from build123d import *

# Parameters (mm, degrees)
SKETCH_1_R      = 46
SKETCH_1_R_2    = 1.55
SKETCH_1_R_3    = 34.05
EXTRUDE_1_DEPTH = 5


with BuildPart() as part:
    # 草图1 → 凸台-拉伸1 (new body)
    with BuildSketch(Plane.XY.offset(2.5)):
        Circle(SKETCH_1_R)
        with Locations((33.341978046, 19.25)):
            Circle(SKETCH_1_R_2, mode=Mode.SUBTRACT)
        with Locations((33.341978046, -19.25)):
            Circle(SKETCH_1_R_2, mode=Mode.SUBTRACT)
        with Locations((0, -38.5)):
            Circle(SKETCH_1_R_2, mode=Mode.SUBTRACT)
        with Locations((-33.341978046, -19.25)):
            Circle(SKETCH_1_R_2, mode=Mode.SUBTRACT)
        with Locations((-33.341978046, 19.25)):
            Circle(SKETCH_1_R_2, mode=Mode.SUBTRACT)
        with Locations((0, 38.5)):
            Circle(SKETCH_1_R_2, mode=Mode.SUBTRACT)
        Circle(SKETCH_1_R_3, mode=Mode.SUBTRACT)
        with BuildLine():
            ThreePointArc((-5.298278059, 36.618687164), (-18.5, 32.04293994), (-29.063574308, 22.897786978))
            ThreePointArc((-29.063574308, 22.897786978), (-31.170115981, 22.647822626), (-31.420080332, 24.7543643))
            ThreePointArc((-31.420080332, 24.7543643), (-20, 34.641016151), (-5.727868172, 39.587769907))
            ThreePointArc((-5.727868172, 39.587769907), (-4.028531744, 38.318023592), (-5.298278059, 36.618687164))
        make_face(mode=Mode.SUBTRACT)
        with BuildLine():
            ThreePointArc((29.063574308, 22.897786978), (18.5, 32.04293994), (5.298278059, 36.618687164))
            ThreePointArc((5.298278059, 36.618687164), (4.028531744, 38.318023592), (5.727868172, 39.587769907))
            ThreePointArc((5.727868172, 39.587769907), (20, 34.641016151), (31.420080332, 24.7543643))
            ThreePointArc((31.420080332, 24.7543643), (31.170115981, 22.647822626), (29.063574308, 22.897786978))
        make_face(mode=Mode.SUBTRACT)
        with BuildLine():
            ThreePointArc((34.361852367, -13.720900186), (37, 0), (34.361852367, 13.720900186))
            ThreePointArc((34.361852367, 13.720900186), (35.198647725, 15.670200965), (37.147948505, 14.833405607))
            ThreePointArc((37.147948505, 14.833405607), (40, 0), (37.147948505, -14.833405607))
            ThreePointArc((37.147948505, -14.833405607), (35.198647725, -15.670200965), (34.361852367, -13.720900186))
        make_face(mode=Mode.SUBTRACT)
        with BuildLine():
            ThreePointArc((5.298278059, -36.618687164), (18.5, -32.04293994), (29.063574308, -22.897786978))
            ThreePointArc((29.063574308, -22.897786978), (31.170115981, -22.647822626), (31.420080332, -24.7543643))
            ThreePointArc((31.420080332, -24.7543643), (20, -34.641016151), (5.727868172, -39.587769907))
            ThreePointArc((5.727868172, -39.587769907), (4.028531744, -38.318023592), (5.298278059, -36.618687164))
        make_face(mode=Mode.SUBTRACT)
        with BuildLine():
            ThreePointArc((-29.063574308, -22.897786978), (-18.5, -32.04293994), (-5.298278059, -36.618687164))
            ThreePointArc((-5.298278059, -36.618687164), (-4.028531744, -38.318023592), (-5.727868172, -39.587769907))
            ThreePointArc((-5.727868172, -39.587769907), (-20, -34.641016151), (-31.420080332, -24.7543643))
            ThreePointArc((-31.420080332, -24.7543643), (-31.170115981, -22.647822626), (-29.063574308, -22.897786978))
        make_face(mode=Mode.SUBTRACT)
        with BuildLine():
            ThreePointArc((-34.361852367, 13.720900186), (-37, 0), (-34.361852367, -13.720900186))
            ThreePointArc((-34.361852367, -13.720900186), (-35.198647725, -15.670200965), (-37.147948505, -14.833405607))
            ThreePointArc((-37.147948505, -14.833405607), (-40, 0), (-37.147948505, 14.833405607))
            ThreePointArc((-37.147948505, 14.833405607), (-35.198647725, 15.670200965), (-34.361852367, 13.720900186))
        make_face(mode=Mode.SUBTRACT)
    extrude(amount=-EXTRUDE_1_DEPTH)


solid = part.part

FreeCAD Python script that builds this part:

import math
import FreeCAD as App
import Part
import Sketcher

V = App.Vector
Q = App.Units.Quantity

doc = App.newDocument("Part")
params = doc.addObject("Spreadsheet::Sheet", "Params")
for row, (alias, value) in enumerate([
    ("sketch1_diameter", "92 mm"),
    ("sketch1_radius", "37 mm"),
    ("sketch1_radius2", "40 mm"),
    ("sketch1_diameter2", "3.1 mm"),
    ("sketch1_diameter3", "68.1 mm"),
    ("pad1_length", "5 mm"),
], start=1):
    params.set(f"A{row}", alias)
    params.set(f"B{row}", "=" + value)
    params.setAlias(f"B{row}", alias)

body = doc.addObject("PartDesign::Body", "Body")

# Sketch on XY plane
sketch1 = body.newObject("Sketcher::SketchObject", "Sketch")
sketch1.AttachmentSupport = (doc.getObject("XY_Plane"), [""])
sketch1.MapMode = "FlatFace"
sketch1.AttachmentOffset = App.Placement(V(0, 0, 2.5), App.Rotation())
sketch1.addGeometry([
    Part.Circle(V(0, 0, 0), V(0, 0, 1), 46),  # 0
    Part.ArcOfCircle(Part.Circle(V(-30.2, -23.8, 0), V(0, 0, 1), 1.5), math.radians(38), math.radians(218)),  # 1
    Part.ArcOfCircle(Part.Circle(V(0, 0, 0), V(0, 0, 1), 37), math.radians(-142), math.radians(-98)),  # 2
    Part.ArcOfCircle(Part.Circle(V(-5.5, -38.1, 0), V(0, 0, 1), 1.5), math.radians(-98), math.radians(82)),  # 3
    Part.ArcOfCircle(Part.Circle(V(0, 0, 0), V(0, 0, 1), 40), math.radians(-142), math.radians(-98)),  # 4
    Part.Circle(V(-33.3, -19.2, 0), V(0, 0, 1), 1.6),  # 5
    Part.Circle(V(0, -38.5, 0), V(0, 0, 1), 1.6),  # 6
    Part.ArcOfCircle(Part.Circle(V(5.5, -38.1, 0), V(0, 0, 1), 1.5), math.radians(98), math.radians(278)),  # 7
    Part.ArcOfCircle(Part.Circle(V(0, 0, 0), V(0, 0, 1), 37), math.radians(-82), math.radians(-38)),  # 8
    Part.ArcOfCircle(Part.Circle(V(30.2, -23.8, 0), V(0, 0, 1), 1.5), math.radians(-38), math.radians(142)),  # 9
    Part.ArcOfCircle(Part.Circle(V(0, 0, 0), V(0, 0, 1), 40), math.radians(-82), math.radians(-38)),  # 10
    Part.Circle(V(33.3, -19.2, 0), V(0, 0, 1), 1.6),  # 11
    Part.ArcOfCircle(Part.Circle(V(-35.8, 14.3, 0), V(0, 0, 1), 1.5), math.radians(-22), math.radians(158)),  # 12
    Part.ArcOfCircle(Part.Circle(V(0, 0, 0), V(0, 0, 1), 37), math.radians(158), math.radians(202)),  # 13
    Part.ArcOfCircle(Part.Circle(V(-35.8, -14.3, 0), V(0, 0, 1), 1.5), math.radians(-158), math.radians(22)),  # 14
    Part.ArcOfCircle(Part.Circle(V(0, 0, 0), V(0, 0, 1), 40), math.radians(158), math.radians(202)),  # 15
    Part.Circle(V(-33.3, 19.2, 0), V(0, 0, 1), 1.6),  # 16
    Part.ArcOfCircle(Part.Circle(V(-5.5, 38.1, 0), V(0, 0, 1), 1.5), math.radians(-82), math.radians(98)),  # 17
    Part.ArcOfCircle(Part.Circle(V(0, 0, 0), V(0, 0, 1), 37), math.radians(98), math.radians(142)),  # 18
    Part.ArcOfCircle(Part.Circle(V(-30.2, 23.8, 0), V(0, 0, 1), 1.5), math.radians(142), math.radians(322)),  # 19
    Part.ArcOfCircle(Part.Circle(V(0, 0, 0), V(0, 0, 1), 40), math.radians(98), math.radians(142)),  # 20
    Part.Circle(V(0, 0, 0), V(0, 0, 1), 34),  # 21
    Part.ArcOfCircle(Part.Circle(V(35.8, -14.3, 0), V(0, 0, 1), 1.5), math.radians(158), math.radians(338)),  # 22
    Part.ArcOfCircle(Part.Circle(V(0, 0, 0), V(0, 0, 1), 37), math.radians(-22), math.radians(22)),  # 23
    Part.ArcOfCircle(Part.Circle(V(35.8, 14.3, 0), V(0, 0, 1), 1.5), math.radians(22), math.radians(202)),  # 24
    Part.ArcOfCircle(Part.Circle(V(0, 0, 0), V(0, 0, 1), 40), math.radians(-22), math.radians(22)),  # 25
    Part.Circle(V(33.3, 19.2, 0), V(0, 0, 1), 1.6),  # 26
    Part.Circle(V(0, 38.5, 0), V(0, 0, 1), 1.6),  # 27
    Part.ArcOfCircle(Part.Circle(V(30.2, 23.8, 0), V(0, 0, 1), 1.5), math.radians(-142), math.radians(38)),  # 28
    Part.ArcOfCircle(Part.Circle(V(0, 0, 0), V(0, 0, 1), 37), math.radians(38), math.radians(82)),  # 29
    Part.ArcOfCircle(Part.Circle(V(5.5, 38.1, 0), V(0, 0, 1), 1.5), math.radians(82), math.radians(262)),  # 30
    Part.ArcOfCircle(Part.Circle(V(0, 0, 0), V(0, 0, 1), 40), math.radians(38), math.radians(82)),  # 31
], False)
sketch1.addConstraint([
    Sketcher.Constraint("Tangent", 1, 1, 2, 1),
    Sketcher.Constraint("Tangent", 2, 2, 3, 2),
    Sketcher.Constraint("Tangent", 3, 1, 4, 2),
    Sketcher.Constraint("Tangent", 4, 1, 1, 2),
    Sketcher.Constraint("Tangent", 7, 1, 8, 1),
    Sketcher.Constraint("Tangent", 8, 2, 9, 2),
    Sketcher.Constraint("Tangent", 9, 1, 10, 2),
    Sketcher.Constraint("Tangent", 10, 1, 7, 2),
    Sketcher.Constraint("Tangent", 12, 1, 13, 1),
    Sketcher.Constraint("Tangent", 13, 2, 14, 2),
    Sketcher.Constraint("Tangent", 14, 1, 15, 2),
    Sketcher.Constraint("Tangent", 15, 1, 12, 2),
    Sketcher.Constraint("Tangent", 17, 1, 18, 1),
    Sketcher.Constraint("Tangent", 18, 2, 19, 2),
    Sketcher.Constraint("Tangent", 19, 1, 20, 2),
    Sketcher.Constraint("Tangent", 20, 1, 17, 2),
    Sketcher.Constraint("Tangent", 22, 1, 23, 1),
    Sketcher.Constraint("Tangent", 23, 2, 24, 2),
    Sketcher.Constraint("Tangent", 24, 1, 25, 2),
    Sketcher.Constraint("Tangent", 25, 1, 22, 2),
    Sketcher.Constraint("Tangent", 28, 1, 29, 1),
    Sketcher.Constraint("Tangent", 29, 2, 30, 2),
    Sketcher.Constraint("Tangent", 30, 1, 31, 2),
    Sketcher.Constraint("Tangent", 31, 1, 28, 2),
    Sketcher.Constraint("Coincident", 0, 3, -1, 1),
    Sketcher.Constraint("Coincident", 2, 3, -1, 1),
    Sketcher.Constraint("Coincident", 4, 3, -1, 1),
    Sketcher.Constraint("Coincident", 8, 3, -1, 1),
    Sketcher.Constraint("Coincident", 10, 3, -1, 1),
    Sketcher.Constraint("Coincident", 13, 3, -1, 1),
    Sketcher.Constraint("Coincident", 15, 3, -1, 1),
    Sketcher.Constraint("Coincident", 18, 3, -1, 1),
    Sketcher.Constraint("Coincident", 20, 3, -1, 1),
    Sketcher.Constraint("Coincident", 21, 3, -1, 1),
    Sketcher.Constraint("Coincident", 23, 3, -1, 1),
    Sketcher.Constraint("Coincident", 25, 3, -1, 1),
    Sketcher.Constraint("Coincident", 29, 3, -1, 1),
    Sketcher.Constraint("Coincident", 31, 3, -1, 1),
    Sketcher.Constraint("Equal", 5, 6),
    Sketcher.Constraint("Equal", 3, 7),
    Sketcher.Constraint("Equal", 2, 8),
    Sketcher.Constraint("Equal", 6, 11),
    Sketcher.Constraint("Equal", 9, 12),
    Sketcher.Constraint("Equal", 8, 13),
    Sketcher.Constraint("Equal", 11, 16),
    Sketcher.Constraint("Equal", 14, 17),
    Sketcher.Constraint("Equal", 13, 18),
    Sketcher.Constraint("Equal", 19, 22),
    Sketcher.Constraint("Equal", 18, 23),
    Sketcher.Constraint("Equal", 16, 26),
    Sketcher.Constraint("Equal", 26, 27),
    Sketcher.Constraint("Equal", 24, 28),
    Sketcher.Constraint("Equal", 23, 29),
    Sketcher.Constraint("Symmetric", 11, 3, 16, 3, -1, 1),
    Sketcher.Constraint("Symmetric", 5, 3, 26, 3, -1, 1),
    Sketcher.Constraint("Symmetric", 6, 3, 27, 3, -1, 1),
    Sketcher.Constraint("Symmetric", 5, 3, 11, 3, -2),
    Sketcher.Constraint("PointOnObject", 6, 3, -2),
    Sketcher.Constraint("Horizontal", 3, 3, 7, 3),
    Sketcher.Constraint("Horizontal", 1, 3, 9, 3),
    Sketcher.Constraint("Horizontal", 14, 3, 22, 3),
    Sketcher.Constraint("Horizontal", 12, 3, 24, 3),
    Sketcher.Constraint("Horizontal", 19, 3, 28, 3),
    Sketcher.Constraint("Horizontal", 17, 3, 30, 3),
    Sketcher.Constraint("Vertical", 12, 3, 14, 3),
    Sketcher.Constraint("Vertical", 3, 3, 17, 3),
    Sketcher.Constraint("Vertical", 1, 3, 19, 3),
    Sketcher.Constraint("Diameter", 0, Q("92 mm")),
    Sketcher.Constraint("Radius", 2, Q("37 mm")),
    Sketcher.Constraint("Radius", 4, Q("40 mm")),
    Sketcher.Constraint("Diameter", 5, Q("3.1 mm")),
    Sketcher.Constraint("Diameter", 21, Q("68.1 mm")),
    Sketcher.Constraint("DistanceY", 6, 3, -1, 1, Q("38.5 mm")),
    Sketcher.Constraint("DistanceY", 5, 3, -1, 1, Q("19.25 mm")),
    Sketcher.Constraint("DistanceX", 12, 3, -1, 1, Q("35.7549 mm")),
    Sketcher.Constraint("DistanceX", 1, 3, 7, 3, Q("35.7549 mm")),
    Sketcher.Constraint("DistanceX", 1, 1, 3, 3, Q("23.550501 mm")),
    Sketcher.Constraint("DistanceX", 16, 3, 17, 1, Q("28.0437 mm")),
])
sketch1.setExpression("Constraints[67]", "Params.sketch1_diameter")
sketch1.setExpression("Constraints[68]", "Params.sketch1_radius")
sketch1.setExpression("Constraints[69]", "Params.sketch1_radius2")
sketch1.setExpression("Constraints[70]", "Params.sketch1_diameter2")
sketch1.setExpression("Constraints[71]", "Params.sketch1_diameter3")
pad1 = body.newObject("PartDesign::Pad", "Pad")
pad1.Profile = sketch1
pad1.setExpression("Length", "Params.pad1_length")
pad1.Reversed = True

doc.recompute()
